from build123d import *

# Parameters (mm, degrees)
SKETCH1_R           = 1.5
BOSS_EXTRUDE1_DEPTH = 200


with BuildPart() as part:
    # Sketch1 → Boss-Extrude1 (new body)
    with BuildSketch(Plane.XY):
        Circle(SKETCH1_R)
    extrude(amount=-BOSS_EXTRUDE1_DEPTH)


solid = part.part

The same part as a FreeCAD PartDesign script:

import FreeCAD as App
import Part
import Sketcher

V = App.Vector

doc = App.newDocument("Part")
body = doc.addObject("PartDesign::Body", "Body")

# Sketch on XY plane
sketch1 = body.newObject("Sketcher::SketchObject", "Sketch")
sketch1.AttachmentSupport = (doc.getObject("XY_Plane"), [""])
sketch1.MapMode = "FlatFace"
sketch1.addGeometry(Part.Circle(V(0, 0, 0), V(0, 0, 1), 1.5), False)
sketch1.addConstraint(Sketcher.Constraint("Coincident", 0, 3, -1, 1))
sketch1.addConstraint(Sketcher.Constraint("Diameter", 0, 3.0))
pad1 = body.newObject("PartDesign::Pad", "Pad")
pad1.Profile = sketch1
pad1.Length = 200
pad1.Reversed = True

doc.recompute()
